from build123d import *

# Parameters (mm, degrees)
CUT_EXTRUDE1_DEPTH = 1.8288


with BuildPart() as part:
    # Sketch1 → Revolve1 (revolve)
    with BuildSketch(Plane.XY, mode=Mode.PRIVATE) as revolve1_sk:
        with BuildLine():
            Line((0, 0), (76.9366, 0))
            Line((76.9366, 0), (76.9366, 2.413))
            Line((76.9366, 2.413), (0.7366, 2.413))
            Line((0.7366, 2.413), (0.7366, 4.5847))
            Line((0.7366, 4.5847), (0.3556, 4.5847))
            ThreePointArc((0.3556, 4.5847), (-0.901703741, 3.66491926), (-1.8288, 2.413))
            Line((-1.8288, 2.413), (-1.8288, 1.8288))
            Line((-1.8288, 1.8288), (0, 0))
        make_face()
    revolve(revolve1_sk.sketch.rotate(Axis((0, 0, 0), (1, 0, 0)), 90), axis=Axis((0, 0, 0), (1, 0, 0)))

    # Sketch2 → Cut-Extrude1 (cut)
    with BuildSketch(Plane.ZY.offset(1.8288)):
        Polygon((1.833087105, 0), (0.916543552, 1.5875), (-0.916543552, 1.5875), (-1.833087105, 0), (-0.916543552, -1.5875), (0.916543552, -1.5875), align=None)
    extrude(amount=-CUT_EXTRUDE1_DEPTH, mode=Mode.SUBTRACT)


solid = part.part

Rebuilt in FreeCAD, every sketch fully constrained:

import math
import FreeCAD as App
import Part
import Sketcher
from FreeCAD import Vector
Q = App.Units.Quantity

doc = App.newDocument("Part")
body = doc.addObject("PartDesign::Body", "Body")

sketch1 = doc.addObject("Sketcher::SketchObject", "Sketch")
body.addObject(sketch1)
sketch1.AttachmentSupport = (doc.XY_Plane, [""])
sketch1.MapMode = "FlatFace"
sketch1.addGeometry([
    Part.LineSegment(Vector(0, 0, 0), Vector(76.94, 0, 0)),
    Part.LineSegment(Vector(76.94, 0, 0), Vector(76.94, 2.41, 0)),
    Part.LineSegment(Vector(76.94, 2.41, 0), Vector(0.74, 2.41, 0)),
    Part.LineSegment(Vector(0.74, 2.41, 0), Vector(0.74, 4.58, 0)),
    Part.LineSegment(Vector(0.74, 4.58, 0), Vector(0.36, 4.58, 0)),
    Part.ArcOfCircle(Part.Circle(Vector(2.75, -0.01, 0), Vector(0, 0, 1), 5.18), math.radians(118), math.radians(152)),
    Part.LineSegment(Vector(-1.83, 2.41, 0), Vector(-1.83, 1.83, 0)),
    Part.LineSegment(Vector(-1.83, 1.83, 0), Vector(0, 0, 0)),
], False)
sketch1.addConstraint([
    Sketcher.Constraint("Coincident", 0, 2, 1, 1),
    Sketcher.Constraint("Coincident", 1, 2, 2, 1),
    Sketcher.Constraint("Coincident", 2, 2, 3, 1),
    Sketcher.Constraint("Coincident", 3, 2, 4, 1),
    Sketcher.Constraint("Coincident", 4, 2, 5, 1),
    Sketcher.Constraint("Coincident", 5, 2, 6, 1),
    Sketcher.Constraint("Coincident", 6, 2, 7, 1),
    Sketcher.Constraint("Coincident", 7, 2, 0, 1),
    Sketcher.Constraint("Horizontal", 0),
    Sketcher.Constraint("Vertical", 1),
    Sketcher.Constraint("Horizontal", 2),
    Sketcher.Constraint("Vertical", 3),
    Sketcher.Constraint("Horizontal", 4),
    Sketcher.Constraint("Vertical", 6),
    Sketcher.Constraint("Coincident", 7, 2, -1, 1),
    Sketcher.Constraint("Horizontal", 2, 2, 5, 2),
    Sketcher.Constraint("DistanceX", 2, 2, 2, 1, Q("3 in")),
    Sketcher.Constraint("Angle", 7, Q("-45 deg")),
    Sketcher.Constraint("Radius", 5, Q("0.204 in")),
    Sketcher.Constraint("DistanceX", 0, 1, 0, 2, Q("3.029 in")),
    Sketcher.Constraint("DistanceX", 4, 2, 4, 1, Q("0.015 in")),
    Sketcher.Constraint("DistanceY", 1, 1, 1, 2, Q("0.095 in")),
    Sketcher.Constraint("DistanceY", 6, 2, 6, 1, Q("0.023 in")),
    Sketcher.Constraint("DistanceY", 3, 1, 3, 2, Q("0.0855 in")),
])
revolution = doc.addObject("PartDesign::Revolution", "Revolution")
body.addObject(revolution)
revolution.Profile = sketch1
revolution.ReferenceAxis = (sketch1, ["H_Axis"])
revolution.Angle = 360

sketch2 = doc.addObject("Sketcher::SketchObject", "Sketch001")
body.addObject(sketch2)
sketch2.AttachmentSupport = (doc.YZ_Plane, [""])
sketch2.MapMode = "FlatFace"
sketch2.AttachmentOffset = App.Placement(Vector(0, 0, -0.072 * 25.4), App.Rotation())
sketch2.addGeometry([
    Part.LineSegment(Vector(0, 1.8, 0), Vector(1.6, 0.9, 0)),
    Part.LineSegment(Vector(1.6, 0.9, 0), Vector(1.6, -0.9, 0)),
    Part.LineSegment(Vector(1.6, -0.9, 0), Vector(0, -1.8, 0)),
    Part.LineSegment(Vector(0, -1.8, 0), Vector(-1.6, -0.9, 0)),
    Part.LineSegment(Vector(-1.6, -0.9, 0), Vector(-1.6, 0.9, 0)),
    Part.LineSegment(Vector(-1.6, 0.9, 0), Vector(0, 1.8, 0)),
], False)
sketch2.addConstraint([
    Sketcher.Constraint("Coincident", 0, 2, 1, 1),
    Sketcher.Constraint("Coincident", 1, 2, 2, 1),
    Sketcher.Constraint("Coincident", 2, 2, 3, 1),
    Sketcher.Constraint("Coincident", 3, 2, 4, 1),
    Sketcher.Constraint("Coincident", 4, 2, 5, 1),
    Sketcher.Constraint("Coincident", 5, 2, 0, 1),
    Sketcher.Constraint("Vertical", 1),
    Sketcher.Constraint("Vertical", 4),
    Sketcher.Constraint("Symmetric", 0, 2, 3, 2, -1, 1),
    Sketcher.Constraint("Symmetric", 2, 2, 5, 2, -1, 1),
    Sketcher.Constraint("PointOnObject", 2, 2, -2),
    Sketcher.Constraint("Parallel", 2, 5),
    Sketcher.Constraint("Horizontal", 1, 2, 3, 2),
    Sketcher.Constraint("Angle", 0, Q("-30 deg")),
    Sketcher.Constraint("DistanceX", -1, 1, 0, 2, Q("0.0625 in")),
    Sketcher.Constraint("DistanceY", 1, 2, 1, 1, Q("1.833087 mm")),
])
pocket1 = doc.addObject("PartDesign::Pocket", "Pocket")
body.addObject(pocket1)
pocket1.Profile = sketch2
pocket1.Length = Q("0.072 in")
pocket1.Reversed = True

doc.recompute()
